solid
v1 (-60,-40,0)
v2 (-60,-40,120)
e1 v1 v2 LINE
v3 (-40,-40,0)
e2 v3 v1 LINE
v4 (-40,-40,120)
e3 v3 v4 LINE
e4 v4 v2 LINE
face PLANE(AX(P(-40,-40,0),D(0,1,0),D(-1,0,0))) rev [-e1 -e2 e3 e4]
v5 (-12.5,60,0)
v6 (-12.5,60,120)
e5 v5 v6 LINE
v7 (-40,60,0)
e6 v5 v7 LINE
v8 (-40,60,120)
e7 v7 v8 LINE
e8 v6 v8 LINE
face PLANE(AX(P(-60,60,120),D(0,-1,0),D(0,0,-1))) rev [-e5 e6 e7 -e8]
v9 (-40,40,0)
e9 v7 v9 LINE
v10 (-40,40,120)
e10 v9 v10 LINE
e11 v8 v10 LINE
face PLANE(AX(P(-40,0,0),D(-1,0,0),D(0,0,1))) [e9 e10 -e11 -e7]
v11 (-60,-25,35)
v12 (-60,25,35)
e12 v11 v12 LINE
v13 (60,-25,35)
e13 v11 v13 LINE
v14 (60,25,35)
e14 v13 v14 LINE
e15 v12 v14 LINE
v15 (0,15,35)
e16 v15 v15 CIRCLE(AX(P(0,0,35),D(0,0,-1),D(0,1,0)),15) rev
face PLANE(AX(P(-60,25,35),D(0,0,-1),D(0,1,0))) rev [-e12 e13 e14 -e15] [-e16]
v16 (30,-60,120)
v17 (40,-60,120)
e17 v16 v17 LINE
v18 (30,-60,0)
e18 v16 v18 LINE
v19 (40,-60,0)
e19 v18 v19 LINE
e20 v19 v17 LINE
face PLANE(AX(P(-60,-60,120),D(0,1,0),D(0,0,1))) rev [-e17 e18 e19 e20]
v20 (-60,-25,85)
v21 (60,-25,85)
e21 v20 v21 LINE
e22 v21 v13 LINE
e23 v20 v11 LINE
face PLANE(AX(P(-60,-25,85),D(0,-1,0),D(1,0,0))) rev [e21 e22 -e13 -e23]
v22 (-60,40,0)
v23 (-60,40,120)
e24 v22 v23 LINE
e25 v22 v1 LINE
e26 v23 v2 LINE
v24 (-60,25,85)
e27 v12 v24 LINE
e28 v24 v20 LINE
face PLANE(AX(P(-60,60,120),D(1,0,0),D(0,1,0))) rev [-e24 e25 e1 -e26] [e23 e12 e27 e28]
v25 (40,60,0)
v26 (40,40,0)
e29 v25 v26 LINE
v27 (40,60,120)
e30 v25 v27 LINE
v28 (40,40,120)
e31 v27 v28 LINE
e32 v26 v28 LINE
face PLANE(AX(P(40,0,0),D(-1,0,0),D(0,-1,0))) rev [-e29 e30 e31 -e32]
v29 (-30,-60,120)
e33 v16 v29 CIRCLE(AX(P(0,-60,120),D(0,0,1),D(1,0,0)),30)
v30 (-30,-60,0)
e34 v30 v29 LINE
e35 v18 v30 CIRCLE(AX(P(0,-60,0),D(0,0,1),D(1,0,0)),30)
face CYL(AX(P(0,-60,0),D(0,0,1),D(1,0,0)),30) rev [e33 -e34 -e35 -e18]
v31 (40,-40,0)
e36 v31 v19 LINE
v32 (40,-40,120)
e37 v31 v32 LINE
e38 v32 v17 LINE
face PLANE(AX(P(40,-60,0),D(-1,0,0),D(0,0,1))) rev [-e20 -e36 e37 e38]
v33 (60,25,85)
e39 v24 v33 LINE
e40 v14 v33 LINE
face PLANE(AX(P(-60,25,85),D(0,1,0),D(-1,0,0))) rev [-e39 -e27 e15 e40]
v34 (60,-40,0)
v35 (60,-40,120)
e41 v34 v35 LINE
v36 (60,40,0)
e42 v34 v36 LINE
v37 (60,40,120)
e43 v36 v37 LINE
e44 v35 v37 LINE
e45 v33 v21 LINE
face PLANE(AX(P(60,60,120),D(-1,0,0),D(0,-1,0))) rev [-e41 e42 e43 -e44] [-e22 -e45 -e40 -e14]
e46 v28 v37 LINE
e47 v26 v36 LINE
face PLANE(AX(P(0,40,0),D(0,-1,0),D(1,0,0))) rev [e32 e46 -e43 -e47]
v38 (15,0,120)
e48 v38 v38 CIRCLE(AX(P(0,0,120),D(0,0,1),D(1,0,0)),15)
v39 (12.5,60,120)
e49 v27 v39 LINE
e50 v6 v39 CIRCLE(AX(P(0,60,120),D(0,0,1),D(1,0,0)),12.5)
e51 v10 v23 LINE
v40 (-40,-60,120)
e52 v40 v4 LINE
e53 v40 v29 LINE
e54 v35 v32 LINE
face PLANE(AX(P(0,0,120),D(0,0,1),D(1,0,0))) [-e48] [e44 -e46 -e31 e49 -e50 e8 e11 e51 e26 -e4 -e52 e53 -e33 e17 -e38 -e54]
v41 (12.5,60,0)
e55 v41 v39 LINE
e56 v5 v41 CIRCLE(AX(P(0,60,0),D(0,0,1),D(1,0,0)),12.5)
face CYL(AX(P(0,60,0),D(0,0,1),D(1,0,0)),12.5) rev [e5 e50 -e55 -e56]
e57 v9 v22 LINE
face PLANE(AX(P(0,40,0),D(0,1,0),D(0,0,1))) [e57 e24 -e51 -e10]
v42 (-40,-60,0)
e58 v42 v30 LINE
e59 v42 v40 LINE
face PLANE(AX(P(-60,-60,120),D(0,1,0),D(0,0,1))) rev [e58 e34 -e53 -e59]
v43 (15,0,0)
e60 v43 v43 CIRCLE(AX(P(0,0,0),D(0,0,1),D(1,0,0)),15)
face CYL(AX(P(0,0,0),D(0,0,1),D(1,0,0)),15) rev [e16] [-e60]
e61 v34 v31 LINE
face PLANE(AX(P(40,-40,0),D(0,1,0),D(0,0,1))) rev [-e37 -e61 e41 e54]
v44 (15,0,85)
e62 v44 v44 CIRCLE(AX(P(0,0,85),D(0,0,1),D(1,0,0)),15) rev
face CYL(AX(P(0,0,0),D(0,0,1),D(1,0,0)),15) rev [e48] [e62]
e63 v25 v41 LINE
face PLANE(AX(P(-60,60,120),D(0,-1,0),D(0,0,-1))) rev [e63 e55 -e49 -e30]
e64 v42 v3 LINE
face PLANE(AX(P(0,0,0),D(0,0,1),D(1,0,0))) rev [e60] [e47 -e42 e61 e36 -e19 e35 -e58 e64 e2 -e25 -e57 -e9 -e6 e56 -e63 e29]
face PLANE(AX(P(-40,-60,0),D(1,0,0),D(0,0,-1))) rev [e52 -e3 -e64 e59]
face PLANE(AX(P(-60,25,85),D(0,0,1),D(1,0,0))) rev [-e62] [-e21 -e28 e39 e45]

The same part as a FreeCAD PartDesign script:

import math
import FreeCAD as App
import Part
import Sketcher
from FreeCAD import Vector
Q = App.Units.Quantity

doc = App.newDocument("Part")
params = doc.addObject("Spreadsheet::Sheet", "Params")
for row, (alias, value) in enumerate([
    ("sketch1_width", "120 mm"),
    ("pad1_length", "120 mm"),
    ("sketch2_diameter", "60 mm"),
    ("sketch2_width", "20 mm"),
    ("pocket1_length", "120 mm"),
    ("sketch3_diameter", "30 mm"),
    ("pocket2_length", "120 mm"),
    ("sketch4_radius", "12.5 mm"),
    ("sketch4_width", "20 mm"),
    ("pocket3_length", "120 mm"),
    ("sketch5_width", "50 mm"),
    ("pocket4_length", "120 mm"),
], start=1):
    params.set(f"A{row}", alias)
    params.set(f"B{row}", "=" + value)
    params.setAlias(f"B{row}", alias)

body = doc.addObject("PartDesign::Body", "Body")

# Sketch on XY plane
sketch1 = doc.addObject("Sketcher::SketchObject", "Sketch")
body.addObject(sketch1)
sketch1.AttachmentSupport = (doc.XY_Plane, [""])
sketch1.MapMode = "FlatFace"
sketch1.addGeometry(Part.LineSegment(Vector(-60, 60, 0), Vector(-60, -60, 0)), False)
sketch1.addGeometry(Part.LineSegment(Vector(-60, -60, 0), Vector(60, -60, 0)), False)
sketch1.addGeometry(Part.LineSegment(Vector(60, -60, 0), Vector(60, 60, 0)), False)
sketch1.addGeometry(Part.LineSegment(Vector(60, 60, 0), Vector(-60, 60, 0)), False)
sketch1.addConstraint(Sketcher.Constraint("Coincident", 0, 2, 1, 1))
sketch1.addConstraint(Sketcher.Constraint("Coincident", 1, 2, 2, 1))
sketch1.addConstraint(Sketcher.Constraint("Coincident", 2, 2, 3, 1))
sketch1.addConstraint(Sketcher.Constraint("Coincident", 3, 2, 0, 1))
sketch1.addConstraint(Sketcher.Constraint("Vertical", 0))
sketch1.addConstraint(Sketcher.Constraint("Horizontal", 1))
sketch1.addConstraint(Sketcher.Constraint("Vertical", 2))
sketch1.addConstraint(Sketcher.Constraint("Horizontal", 3))
sketch1.addConstraint(Sketcher.Constraint("Symmetric", 0, 2, 2, 2, -1, 1))
sketch1.addConstraint(Sketcher.Constraint("Equal", 3, 0))
sketch1.addConstraint(Sketcher.Constraint("DistanceX", 1, 1, 1, 2, Q("120 mm")))
sketch1.setExpression("Constraints[10]", "Params.sketch1_width")
pad1 = doc.addObject("PartDesign::Pad", "Pad")
body.addObject(pad1)
pad1.Profile = sketch1
pad1.setExpression("Length", "Params.pad1_length")

# Sketch on XY plane
sketch2 = doc.addObject("Sketcher::SketchObject", "Sketch001")
body.addObject(sketch2)
sketch2.AttachmentSupport = (doc.XY_Plane, [""])
sketch2.MapMode = "FlatFace"
sketch2.AttachmentOffset = App.Placement(Vector(0, 0, 120), App.Rotation())
sketch2.addGeometry(Part.Circle(Vector(0, -60, 0), Vector(0, 0, 1), 30), False)
sketch2.addGeometry(Part.LineSegment(Vector(40, -40, 0), Vector(40, -60, 0)), False)
sketch2.addGeometry(Part.LineSegment(Vector(40, -60, 0), Vector(60, -60, 0)), False)
sketch2.addGeometry(Part.LineSegment(Vector(60, -60, 0), Vector(60, -40, 0)), False)
sketch2.addGeometry(Part.LineSegment(Vector(60, -40, 0), Vector(40, -40, 0)), False)
sketch2.addGeometry(Part.LineSegment(Vector(-60, -40, 0), Vector(-60, -60, 0)), False)
sketch2.addGeometry(Part.LineSegment(Vector(-60, -60, 0), Vector(-40, -60, 0)), False)
sketch2.addGeometry(Part.LineSegment(Vector(-40, -60, 0), Vector(-40, -40, 0)), False)
sketch2.addGeometry(Part.LineSegment(Vector(-40, -40, 0), Vector(-60, -40, 0)), False)
sketch2.addConstraint(Sketcher.Constraint("Coincident", 1, 2, 2, 1))
sketch2.addConstraint(Sketcher.Constraint("Coincident", 2, 2, 3, 1))
sketch2.addConstraint(Sketcher.Constraint("Coincident", 3, 2, 4, 1))
sketch2.addConstraint(Sketcher.Constraint("Coincident", 4, 2, 1, 1))
sketch2.addConstraint(Sketcher.Constraint("Coincident", 5, 2, 6, 1))
sketch2.addConstraint(Sketcher.Constraint("Coincident", 6, 2, 7, 1))
sketch2.addConstraint(Sketcher.Constraint("Coincident", 7, 2, 8, 1))
sketch2.addConstraint(Sketcher.Constraint("Coincident", 8, 2, 5, 1))
sketch2.addConstraint(Sketcher.Constraint("Vertical", 1))
sketch2.addConstraint(Sketcher.Constraint("Horizontal", 2))
sketch2.addConstraint(Sketcher.Constraint("Vertical", 3))
sketch2.addConstraint(Sketcher.Constraint("Horizontal", 4))
sketch2.addConstraint(Sketcher.Constraint("Vertical", 5))
sketch2.addConstraint(Sketcher.Constraint("Horizontal", 6))
sketch2.addConstraint(Sketcher.Constraint("Vertical", 7))
sketch2.addConstraint(Sketcher.Constraint("Horizontal", 8))
sketch2.addConstraint(Sketcher.Constraint("Symmetric", 2, 2, 5, 2, -2))
sketch2.addConstraint(Sketcher.Constraint("Symmetric", 4, 2, 7, 2, -2))
sketch2.addConstraint(Sketcher.Constraint("PointOnObject", 0, 3, -2))
sketch2.addConstraint(Sketcher.Constraint("Horizontal", 0, 3, 1, 2))
sketch2.addConstraint(Sketcher.Constraint("Equal", 8, 1))
sketch2.addConstraint(Sketcher.Constraint("Diameter", 0, Q("60 mm")))
sketch2.addConstraint(Sketcher.Constraint("DistanceX", 2, 1, 2, 2, Q("20 mm")))
sketch2.addConstraint(Sketcher.Constraint("DistanceY", 0, 3, -1, 1, Q("60 mm")))
sketch2.addConstraint(Sketcher.Constraint("DistanceX", -1, 1, 1, 2, Q("40 mm")))
sketch2.setExpression("Constraints[21]", "Params.sketch2_diameter")
sketch2.setExpression("Constraints[22]", "Params.sketch2_width")
pocket1 = doc.addObject("PartDesign::Pocket", "Pocket")
body.addObject(pocket1)
pocket1.Profile = sketch2
pocket1.setExpression("Length", "Params.pocket1_length")

# Sketch on XY plane
sketch3 = doc.addObject("Sketcher::SketchObject", "Sketch002")
body.addObject(sketch3)
sketch3.AttachmentSupport = (doc.XY_Plane, [""])
sketch3.MapMode = "FlatFace"
sketch3.AttachmentOffset = App.Placement(Vector(0, 0, 120), App.Rotation())
sketch3.addGeometry(Part.Circle(Vector(0, 0, 0), Vector(0, 0, 1), 15), False)
sketch3.addConstraint(Sketcher.Constraint("Coincident", 0, 3, -1, 1))
sketch3.addConstraint(Sketcher.Constraint("Diameter", 0, Q("30 mm")))
sketch3.setExpression("Constraints[1]", "Params.sketch3_diameter")
pocket2 = doc.addObject("PartDesign::Pocket", "Pocket001")
body.addObject(pocket2)
pocket2.Profile = sketch3
pocket2.setExpression("Length", "Params.pocket2_length")

# Sketch on XY plane
sketch4 = doc.addObject("Sketcher::SketchObject", "Sketch003")
body.addObject(sketch4)
sketch4.AttachmentSupport = (doc.XY_Plane, [""])
sketch4.MapMode = "FlatFace"
sketch4.AttachmentOffset = App.Placement(Vector(0, 0, 120), App.Rotation())
sketch4.addGeometry(Part.LineSegment(Vector(-60, 60, 0), Vector(-60, 40, 0)), False)
sketch4.addGeometry(Part.LineSegment(Vector(-60, 40, 0), Vector(-40, 40, 0)), False)
sketch4.addGeometry(Part.LineSegment(Vector(-40, 40, 0), Vector(-40, 60, 0)), False)
sketch4.addGeometry(Part.LineSegment(Vector(-40, 60, 0), Vector(-60, 60, 0)), False)
sketch4.addGeometry(Part.ArcOfCircle(Part.Circle(Vector(0, 60, 0), Vector(0, 0, 1), 12), math.radians(180), math.radians(270)), False)
sketch4.addGeometry(Part.ArcOfCircle(Part.Circle(Vector(0, 60, 0), Vector(0, 0, 1), 12), math.radians(-90), math.radians(0)), False)
sketch4.addGeometry(Part.LineSegment(Vector(12, 60, 0), Vector(-12, 60, 0)), False)
sketch4.addGeometry(Part.LineSegment(Vector(40, 60, 0), Vector(40, 40, 0)), False)
sketch4.addGeometry(Part.LineSegment(Vector(40, 40, 0), Vector(60, 40, 0)), False)
sketch4.addGeometry(Part.LineSegment(Vector(60, 40, 0), Vector(60, 60, 0)), False)
sketch4.addGeometry(Part.LineSegment(Vector(60, 60, 0), Vector(40, 60, 0)), False)
sketch4.addConstraint(Sketcher.Constraint("Coincident", 0, 2, 1, 1))
sketch4.addConstraint(Sketcher.Constraint("Coincident", 1, 2, 2, 1))
sketch4.addConstraint(Sketcher.Constraint("Coincident", 2, 2, 3, 1))
sketch4.addConstraint(Sketcher.Constraint("Coincident", 3, 2, 0, 1))
sketch4.addConstraint(Sketcher.Constraint("Tangent", 4, 2, 5, 1))
sketch4.addConstraint(Sketcher.Constraint("Coincident", 5, 2, 6, 1))
sketch4.addConstraint(Sketcher.Constraint("Coincident", 6, 2, 4, 1))
sketch4.addConstraint(Sketcher.Constraint("Coincident", 7, 2, 8, 1))
sketch4.addConstraint(Sketcher.Constraint("Coincident", 8, 2, 9, 1))
sketch4.addConstraint(Sketcher.Constraint("Coincident", 9, 2, 10, 1))
sketch4.addConstraint(Sketcher.Constraint("Coincident", 10, 2, 7, 1))
sketch4.addConstraint(Sketcher.Constraint("Vertical", 0))
sketch4.addConstraint(Sketcher.Constraint("Horizontal", 1))
sketch4.addConstraint(Sketcher.Constraint("Vertical", 2))
sketch4.addConstraint(Sketcher.Constraint("Horizontal", 3))
sketch4.addConstraint(Sketcher.Constraint("Horizontal", 6))
sketch4.addConstraint(Sketcher.Constraint("Vertical", 7))
sketch4.addConstraint(Sketcher.Constraint("Horizontal", 8))
sketch4.addConstraint(Sketcher.Constraint("Vertical", 9))
sketch4.addConstraint(Sketcher.Constraint("Horizontal", 10))
sketch4.addConstraint(Sketcher.Constraint("Equal", 4, 5))
sketch4.addConstraint(Sketcher.Constraint("Symmetric", 1, 2, 7, 2, -2))
sketch4.addConstraint(Sketcher.Constraint("Symmetric", 3, 2, 9, 2, -2))
sketch4.addConstraint(Sketcher.Constraint("PointOnObject", 4, 3, -2))
sketch4.addConstraint(Sketcher.Constraint("PointOnObject", 4, 2, -2))
sketch4.addConstraint(Sketcher.Constraint("Horizontal", 5, 3, 2, 2))
sketch4.addConstraint(Sketcher.Constraint("Horizontal", 3, 2, 5, 2))
sketch4.addConstraint(Sketcher.Constraint("Equal", 10, 0))
sketch4.addConstraint(Sketcher.Constraint("Radius", 4, Q("12.5 mm")))
sketch4.addConstraint(Sketcher.Constraint("DistanceX", 1, 1, 1, 2, Q("20 mm")))
sketch4.addConstraint(Sketcher.Constraint("DistanceY", -1, 1, 4, 3, Q("60 mm")))
sketch4.addConstraint(Sketcher.Constraint("DistanceX", 0, 2, -1, 1, Q("60 mm")))
sketch4.setExpression("Constraints[28]", "Params.sketch4_radius")
sketch4.setExpression("Constraints[29]", "Params.sketch4_width")
pocket3 = doc.addObject("PartDesign::Pocket", "Pocket002")
body.addObject(pocket3)
pocket3.Profile = sketch4
pocket3.setExpression("Length", "Params.pocket3_length")

# Sketch on YZ plane
sketch5 = doc.addObject("Sketcher::SketchObject", "Sketch004")
body.addObject(sketch5)
sketch5.AttachmentSupport = (doc.YZ_Plane, [""])
sketch5.MapMode = "FlatFace"
sketch5.AttachmentOffset = App.Placement(Vector(0, 0, 60), App.Rotation())
sketch5.addGeometry(Part.LineSegment(Vector(25, 85, 0), Vector(-25, 85, 0)), False)
sketch5.addGeometry(Part.LineSegment(Vector(-25, 85, 0), Vector(-25, 35, 0)), False)
sketch5.addGeometry(Part.LineSegment(Vector(-25, 35, 0), Vector(25, 35, 0)), False)
sketch5.addGeometry(Part.LineSegment(Vector(25, 35, 0), Vector(25, 85, 0)), False)
sketch5.addConstraint(Sketcher.Constraint("Coincident", 0, 2, 1, 1))
sketch5.addConstraint(Sketcher.Constraint("Coincident", 1, 2, 2, 1))
sketch5.addConstraint(Sketcher.Constraint("Coincident", 2, 2, 3, 1))
sketch5.addConstraint(Sketcher.Constraint("Coincident", 3, 2, 0, 1))
sketch5.addConstraint(Sketcher.Constraint("Horizontal", 0))
sketch5.addConstraint(Sketcher.Constraint("Vertical", 1))
sketch5.addConstraint(Sketcher.Constraint("Horizontal", 2))
sketch5.addConstraint(Sketcher.Constraint("Vertical", 3))
sketch5.addConstraint(Sketcher.Constraint("Equal", 2, 1))
sketch5.addConstraint(Sketcher.Constraint("DistanceX", 0, 2, 0, 1, Q("50 mm")))
sketch5.addConstraint(Sketcher.Constraint("DistanceX", 0, 2, -1, 1, Q("25 mm")))
sketch5.addConstraint(Sketcher.Constraint("DistanceY", -1, 1, 0, 2, Q("85 mm")))
sketch5.setExpression("Constraints[9]", "Params.sketch5_width")
pocket4 = doc.addObject("PartDesign::Pocket", "Pocket003")
body.addObject(pocket4)
pocket4.Profile = sketch5
pocket4.setExpression("Length", "Params.pocket4_length")

doc.recompute()
